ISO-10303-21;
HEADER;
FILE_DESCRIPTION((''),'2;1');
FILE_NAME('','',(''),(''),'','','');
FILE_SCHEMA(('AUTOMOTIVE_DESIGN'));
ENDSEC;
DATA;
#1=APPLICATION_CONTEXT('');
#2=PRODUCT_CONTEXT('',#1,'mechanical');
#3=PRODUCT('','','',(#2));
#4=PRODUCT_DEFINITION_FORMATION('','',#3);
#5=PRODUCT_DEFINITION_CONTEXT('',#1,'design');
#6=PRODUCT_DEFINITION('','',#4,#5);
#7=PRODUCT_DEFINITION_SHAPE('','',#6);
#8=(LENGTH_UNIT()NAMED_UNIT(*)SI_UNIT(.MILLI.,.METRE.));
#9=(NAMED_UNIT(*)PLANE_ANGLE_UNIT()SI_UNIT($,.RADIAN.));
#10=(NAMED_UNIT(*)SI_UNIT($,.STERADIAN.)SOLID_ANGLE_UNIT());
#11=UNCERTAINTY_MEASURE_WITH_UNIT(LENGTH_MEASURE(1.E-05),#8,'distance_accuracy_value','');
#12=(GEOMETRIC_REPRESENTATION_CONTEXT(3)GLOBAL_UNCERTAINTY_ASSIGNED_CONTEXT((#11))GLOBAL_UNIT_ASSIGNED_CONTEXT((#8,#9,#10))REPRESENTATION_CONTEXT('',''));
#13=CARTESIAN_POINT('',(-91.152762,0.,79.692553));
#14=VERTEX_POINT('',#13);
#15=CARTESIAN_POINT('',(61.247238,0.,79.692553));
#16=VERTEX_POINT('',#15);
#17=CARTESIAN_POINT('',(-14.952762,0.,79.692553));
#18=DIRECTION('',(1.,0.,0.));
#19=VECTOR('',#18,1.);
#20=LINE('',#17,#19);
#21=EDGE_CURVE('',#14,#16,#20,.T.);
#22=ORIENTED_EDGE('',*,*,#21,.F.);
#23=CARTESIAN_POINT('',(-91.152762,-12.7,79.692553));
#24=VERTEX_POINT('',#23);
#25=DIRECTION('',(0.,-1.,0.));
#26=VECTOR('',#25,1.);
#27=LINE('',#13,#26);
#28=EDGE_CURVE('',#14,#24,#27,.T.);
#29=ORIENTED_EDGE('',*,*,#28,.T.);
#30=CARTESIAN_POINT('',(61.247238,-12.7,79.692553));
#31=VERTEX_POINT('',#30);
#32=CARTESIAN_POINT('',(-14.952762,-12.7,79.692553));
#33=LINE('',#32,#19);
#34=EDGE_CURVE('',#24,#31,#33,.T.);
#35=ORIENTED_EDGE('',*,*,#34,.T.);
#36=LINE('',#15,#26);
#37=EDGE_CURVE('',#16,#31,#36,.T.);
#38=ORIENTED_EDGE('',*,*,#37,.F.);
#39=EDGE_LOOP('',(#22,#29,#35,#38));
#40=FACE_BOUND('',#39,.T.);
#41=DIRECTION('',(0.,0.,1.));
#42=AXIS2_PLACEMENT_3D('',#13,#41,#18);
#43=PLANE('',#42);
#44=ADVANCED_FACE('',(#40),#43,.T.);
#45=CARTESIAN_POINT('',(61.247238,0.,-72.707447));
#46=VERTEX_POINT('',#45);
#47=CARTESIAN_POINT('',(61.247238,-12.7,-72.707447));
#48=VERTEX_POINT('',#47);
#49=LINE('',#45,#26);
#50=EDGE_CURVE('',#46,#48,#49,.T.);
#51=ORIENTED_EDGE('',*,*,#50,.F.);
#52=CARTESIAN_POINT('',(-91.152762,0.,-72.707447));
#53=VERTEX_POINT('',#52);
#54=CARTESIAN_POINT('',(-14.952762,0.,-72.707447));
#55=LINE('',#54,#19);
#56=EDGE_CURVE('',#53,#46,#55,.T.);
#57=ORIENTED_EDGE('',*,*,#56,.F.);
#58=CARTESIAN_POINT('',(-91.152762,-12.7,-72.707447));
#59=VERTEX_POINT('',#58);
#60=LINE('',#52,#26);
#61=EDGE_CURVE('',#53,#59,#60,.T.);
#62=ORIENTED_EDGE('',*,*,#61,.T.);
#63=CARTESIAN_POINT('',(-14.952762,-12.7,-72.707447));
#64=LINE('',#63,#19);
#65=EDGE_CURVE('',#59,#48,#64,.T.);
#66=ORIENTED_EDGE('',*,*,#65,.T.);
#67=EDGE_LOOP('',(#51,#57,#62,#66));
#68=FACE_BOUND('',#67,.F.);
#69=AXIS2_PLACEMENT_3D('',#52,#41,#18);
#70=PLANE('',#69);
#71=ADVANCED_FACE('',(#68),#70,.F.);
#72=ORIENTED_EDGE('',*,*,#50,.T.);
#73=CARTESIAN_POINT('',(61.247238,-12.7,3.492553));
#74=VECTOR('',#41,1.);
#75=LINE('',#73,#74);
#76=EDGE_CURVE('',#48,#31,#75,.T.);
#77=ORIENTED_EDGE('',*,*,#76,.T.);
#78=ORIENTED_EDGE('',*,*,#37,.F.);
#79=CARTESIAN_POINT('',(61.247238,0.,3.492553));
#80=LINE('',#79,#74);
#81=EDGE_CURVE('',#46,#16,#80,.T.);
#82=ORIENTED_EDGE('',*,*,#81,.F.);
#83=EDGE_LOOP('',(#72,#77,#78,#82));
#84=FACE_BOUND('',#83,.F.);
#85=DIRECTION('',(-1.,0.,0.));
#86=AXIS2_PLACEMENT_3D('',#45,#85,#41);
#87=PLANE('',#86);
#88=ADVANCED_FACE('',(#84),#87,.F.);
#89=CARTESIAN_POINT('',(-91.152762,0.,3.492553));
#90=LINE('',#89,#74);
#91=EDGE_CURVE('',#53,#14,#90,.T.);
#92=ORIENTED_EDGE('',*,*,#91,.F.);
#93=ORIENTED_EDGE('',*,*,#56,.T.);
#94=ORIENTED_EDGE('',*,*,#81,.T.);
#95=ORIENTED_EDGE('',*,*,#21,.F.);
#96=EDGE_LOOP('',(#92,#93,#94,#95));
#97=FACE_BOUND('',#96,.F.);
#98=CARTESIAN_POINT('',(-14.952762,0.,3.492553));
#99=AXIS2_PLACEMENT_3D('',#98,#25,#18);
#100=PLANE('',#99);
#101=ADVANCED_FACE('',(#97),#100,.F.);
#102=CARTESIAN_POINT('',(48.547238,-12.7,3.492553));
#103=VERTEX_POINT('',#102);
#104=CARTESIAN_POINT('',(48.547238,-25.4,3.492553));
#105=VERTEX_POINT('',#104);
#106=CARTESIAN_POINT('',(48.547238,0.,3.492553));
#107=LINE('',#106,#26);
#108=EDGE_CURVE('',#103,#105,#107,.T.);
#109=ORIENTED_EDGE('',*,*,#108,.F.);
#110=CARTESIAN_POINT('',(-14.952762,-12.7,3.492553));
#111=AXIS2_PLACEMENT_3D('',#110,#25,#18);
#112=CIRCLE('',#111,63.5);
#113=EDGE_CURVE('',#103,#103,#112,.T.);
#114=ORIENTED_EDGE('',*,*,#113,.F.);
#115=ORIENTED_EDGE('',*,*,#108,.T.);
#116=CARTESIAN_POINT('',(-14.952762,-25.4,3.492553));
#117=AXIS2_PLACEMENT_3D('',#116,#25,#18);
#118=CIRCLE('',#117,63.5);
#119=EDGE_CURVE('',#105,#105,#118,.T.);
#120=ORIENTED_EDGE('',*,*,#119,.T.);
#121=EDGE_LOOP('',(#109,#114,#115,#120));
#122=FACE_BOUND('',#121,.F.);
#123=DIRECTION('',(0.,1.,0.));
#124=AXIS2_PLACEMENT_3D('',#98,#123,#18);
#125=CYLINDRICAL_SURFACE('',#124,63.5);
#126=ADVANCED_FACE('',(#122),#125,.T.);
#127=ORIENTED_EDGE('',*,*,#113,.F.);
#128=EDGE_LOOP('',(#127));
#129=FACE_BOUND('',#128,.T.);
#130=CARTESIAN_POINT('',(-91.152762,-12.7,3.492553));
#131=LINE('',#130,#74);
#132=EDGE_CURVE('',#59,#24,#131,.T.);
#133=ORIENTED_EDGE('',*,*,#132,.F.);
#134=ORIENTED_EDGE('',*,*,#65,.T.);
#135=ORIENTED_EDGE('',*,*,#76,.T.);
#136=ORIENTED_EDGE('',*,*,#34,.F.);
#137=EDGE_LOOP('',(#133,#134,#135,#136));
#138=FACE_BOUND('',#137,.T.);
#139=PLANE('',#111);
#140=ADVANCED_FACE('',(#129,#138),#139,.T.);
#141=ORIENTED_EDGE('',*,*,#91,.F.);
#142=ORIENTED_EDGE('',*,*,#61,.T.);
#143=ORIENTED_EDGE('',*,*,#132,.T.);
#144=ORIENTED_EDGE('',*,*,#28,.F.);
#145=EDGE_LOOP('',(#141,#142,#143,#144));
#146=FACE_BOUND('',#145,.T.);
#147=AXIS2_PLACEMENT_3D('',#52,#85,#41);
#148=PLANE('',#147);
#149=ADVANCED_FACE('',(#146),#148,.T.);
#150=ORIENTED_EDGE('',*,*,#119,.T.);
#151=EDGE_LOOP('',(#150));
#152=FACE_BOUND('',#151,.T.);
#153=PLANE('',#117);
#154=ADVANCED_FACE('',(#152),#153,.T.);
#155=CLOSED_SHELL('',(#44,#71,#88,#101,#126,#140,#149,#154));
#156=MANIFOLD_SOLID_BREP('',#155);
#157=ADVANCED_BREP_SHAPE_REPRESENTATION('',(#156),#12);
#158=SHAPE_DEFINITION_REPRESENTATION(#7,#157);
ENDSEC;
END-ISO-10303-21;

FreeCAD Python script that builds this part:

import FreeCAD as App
import Part
import Sketcher

V = App.Vector
Q = App.Units.Quantity


def add_polygon(sketch, points):
    """Adds a closed chain of lines whose ends are joined by coincident constraints."""
    first, n = sketch.GeometryCount, len(points)
    for a, b in zip(points, points[1:] + points[:1]):
        sketch.addGeometry(Part.LineSegment(App.Vector(*a, 0), App.Vector(*b, 0)), False)
    for i in range(n):
        sketch.addConstraint(Sketcher.Constraint("Coincident", first + i, 2, first + (i + 1) % n, 1))

doc = App.newDocument("Part")
body = doc.addObject("PartDesign::Body", "Body")

# Sketch on XZ plane
sketch1 = body.newObject("Sketcher::SketchObject", "Sketch")
sketch1.AttachmentSupport = (doc.getObject("XZ_Plane"), [""])
sketch1.MapMode = "FlatFace"
add_polygon(sketch1, [(-91, 80), (-91, -73), (61, -73), (61, 80)])  # lines 0-3
sketch1.addGeometry(Part.Circle(V(-15, 3, 0), V(0, 0, 1), 64), False)  # 4
sketch1.addConstraint(Sketcher.Constraint("Vertical", 0))
sketch1.addConstraint(Sketcher.Constraint("Horizontal", 1))
sketch1.addConstraint(Sketcher.Constraint("Vertical", 2))
sketch1.addConstraint(Sketcher.Constraint("Horizontal", 3))
sketch1.addConstraint(Sketcher.Constraint("Equal", 3, 0))
sketch1.addConstraint(Sketcher.Constraint("Diameter", 4, Q("5 in")))
sketch1.addConstraint(Sketcher.Constraint("DistanceX", 1, 1, 1, 2, Q("6 in")))
sketch1.addConstraint(Sketcher.Constraint("DistanceX", 0, 2, 4, 3, Q("3 in")))
sketch1.addConstraint(Sketcher.Constraint("DistanceY", 0, 2, 4, 3, Q("3 in")))
sketch1.addConstraint(Sketcher.Constraint("DistanceX", 0, 2, -1, 1, 91.152762))
sketch1.addConstraint(Sketcher.Constraint("DistanceY", -1, 1, 4, 3, 3.492553))
pad1 = body.newObject("PartDesign::Pad", "Pad")
pad1.Profile = sketch1
pad1.Length = Q("0.5 in")

# Sketch on XZ plane
sketch2 = body.newObject("Sketcher::SketchObject", "Sketch001")
sketch2.AttachmentSupport = (doc.getObject("XZ_Plane"), [""])
sketch2.MapMode = "FlatFace"
sketch2.addGeometry(Part.Circle(V(-15, 3, 0), V(0, 0, 1), 64), False)
sketch2.addConstraint(Sketcher.Constraint("Diameter", 0, Q("5 in")))
sketch2.addConstraint(Sketcher.Constraint("DistanceX", 0, 3, -1, 1, 14.952762))
sketch2.addConstraint(Sketcher.Constraint("DistanceY", -1, 1, 0, 3, 3.492553))
pad2 = body.newObject("PartDesign::Pad", "Pad001")
pad2.Profile = sketch2
pad2.Length = Q("1 in")

doc.recompute()
